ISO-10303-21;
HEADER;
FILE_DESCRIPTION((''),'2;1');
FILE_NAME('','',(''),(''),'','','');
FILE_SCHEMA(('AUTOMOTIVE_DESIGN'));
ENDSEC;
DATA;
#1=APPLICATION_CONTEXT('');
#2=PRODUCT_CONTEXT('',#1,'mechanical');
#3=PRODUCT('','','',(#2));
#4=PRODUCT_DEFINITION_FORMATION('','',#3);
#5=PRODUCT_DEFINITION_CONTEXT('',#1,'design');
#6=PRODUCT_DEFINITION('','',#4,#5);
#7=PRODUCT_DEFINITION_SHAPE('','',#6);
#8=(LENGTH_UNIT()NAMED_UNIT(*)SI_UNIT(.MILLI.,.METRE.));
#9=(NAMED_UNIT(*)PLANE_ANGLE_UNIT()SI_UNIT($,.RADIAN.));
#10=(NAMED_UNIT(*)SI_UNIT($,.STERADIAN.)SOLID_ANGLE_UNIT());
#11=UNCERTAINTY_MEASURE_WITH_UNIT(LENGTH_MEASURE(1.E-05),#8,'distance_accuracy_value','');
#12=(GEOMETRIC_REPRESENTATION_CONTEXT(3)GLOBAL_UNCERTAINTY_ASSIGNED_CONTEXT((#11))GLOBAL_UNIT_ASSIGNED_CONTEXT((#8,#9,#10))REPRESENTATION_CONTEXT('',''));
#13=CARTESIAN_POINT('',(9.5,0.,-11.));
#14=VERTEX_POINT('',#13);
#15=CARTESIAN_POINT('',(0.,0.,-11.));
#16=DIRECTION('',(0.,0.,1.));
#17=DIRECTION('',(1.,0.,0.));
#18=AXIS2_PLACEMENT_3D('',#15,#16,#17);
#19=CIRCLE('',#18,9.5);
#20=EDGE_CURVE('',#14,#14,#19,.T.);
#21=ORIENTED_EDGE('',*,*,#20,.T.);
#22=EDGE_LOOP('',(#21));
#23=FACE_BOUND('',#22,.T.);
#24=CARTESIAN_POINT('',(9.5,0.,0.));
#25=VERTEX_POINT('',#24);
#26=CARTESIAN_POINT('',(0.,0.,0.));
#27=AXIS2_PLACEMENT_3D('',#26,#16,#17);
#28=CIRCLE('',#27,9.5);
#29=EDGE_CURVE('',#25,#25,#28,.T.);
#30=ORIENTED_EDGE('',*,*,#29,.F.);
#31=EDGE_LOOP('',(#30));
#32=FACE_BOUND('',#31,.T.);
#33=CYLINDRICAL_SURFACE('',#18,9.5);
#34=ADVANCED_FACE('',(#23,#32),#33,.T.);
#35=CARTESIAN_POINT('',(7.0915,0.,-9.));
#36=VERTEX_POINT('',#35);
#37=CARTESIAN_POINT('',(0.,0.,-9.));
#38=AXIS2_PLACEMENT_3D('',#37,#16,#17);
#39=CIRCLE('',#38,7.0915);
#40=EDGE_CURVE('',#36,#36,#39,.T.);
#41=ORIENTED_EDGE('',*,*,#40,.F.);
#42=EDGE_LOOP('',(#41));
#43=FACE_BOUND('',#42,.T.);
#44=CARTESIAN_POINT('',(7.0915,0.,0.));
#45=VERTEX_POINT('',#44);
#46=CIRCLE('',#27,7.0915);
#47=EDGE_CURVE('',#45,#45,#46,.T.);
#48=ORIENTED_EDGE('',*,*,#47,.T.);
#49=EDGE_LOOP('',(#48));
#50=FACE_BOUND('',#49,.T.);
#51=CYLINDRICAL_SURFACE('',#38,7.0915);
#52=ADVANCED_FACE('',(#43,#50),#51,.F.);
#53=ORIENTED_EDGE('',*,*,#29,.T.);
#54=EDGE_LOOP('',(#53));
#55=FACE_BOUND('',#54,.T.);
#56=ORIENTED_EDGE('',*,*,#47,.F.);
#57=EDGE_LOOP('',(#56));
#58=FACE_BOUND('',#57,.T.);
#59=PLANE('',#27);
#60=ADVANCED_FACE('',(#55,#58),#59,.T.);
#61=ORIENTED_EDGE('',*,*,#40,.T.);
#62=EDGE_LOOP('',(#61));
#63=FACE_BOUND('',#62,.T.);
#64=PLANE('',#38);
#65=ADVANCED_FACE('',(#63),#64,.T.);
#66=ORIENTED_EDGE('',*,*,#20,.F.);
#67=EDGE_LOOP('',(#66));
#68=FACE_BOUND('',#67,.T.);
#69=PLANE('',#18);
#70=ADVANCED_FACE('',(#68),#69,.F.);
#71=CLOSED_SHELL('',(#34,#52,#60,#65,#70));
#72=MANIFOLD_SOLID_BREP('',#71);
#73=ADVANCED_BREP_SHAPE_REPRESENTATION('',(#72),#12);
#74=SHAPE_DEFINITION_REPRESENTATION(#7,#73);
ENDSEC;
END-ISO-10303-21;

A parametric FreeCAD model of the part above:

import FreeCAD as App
import Part
import Sketcher
from FreeCAD import Vector
Q = App.Units.Quantity

doc = App.newDocument("Part")
body = doc.addObject("PartDesign::Body", "Body")

# Sketch on XY plane
sketch1 = body.newObject("Sketcher::SketchObject", "Sketch")
sketch1.AttachmentSupport = (doc.getObject("XY_Plane"), [""])
sketch1.MapMode = "FlatFace"
sketch1.addGeometry(Part.Circle(Vector(0, 0, 0), Vector(0, 0, 1), 10), False)
sketch1.addConstraint(Sketcher.Constraint("Coincident", 0, 3, -1, 1))
sketch1.addConstraint(Sketcher.Constraint("Diameter", 0, Q("19 mm")))
pad1 = body.newObject("PartDesign::Pad", "Pad")
pad1.Profile = sketch1
pad1.Length = 11
pad1.Reversed = True

# Sketch on XY plane
sketch2 = body.newObject("Sketcher::SketchObject", "Sketch001")
sketch2.AttachmentSupport = (doc.getObject("XY_Plane"), [""])
sketch2.MapMode = "FlatFace"
sketch2.addGeometry(Part.Circle(Vector(0, 0, 0), Vector(0, 0, 1), 7), False)
sketch2.addConstraint(Sketcher.Constraint("Coincident", 0, 3, -1, 1))
sketch2.addConstraint(Sketcher.Constraint("Diameter", 0, Q("14.183 mm")))
pocket1 = body.newObject("PartDesign::Pocket", "Pocket")
pocket1.Profile = sketch2
pocket1.Length = 9

doc.recompute()
